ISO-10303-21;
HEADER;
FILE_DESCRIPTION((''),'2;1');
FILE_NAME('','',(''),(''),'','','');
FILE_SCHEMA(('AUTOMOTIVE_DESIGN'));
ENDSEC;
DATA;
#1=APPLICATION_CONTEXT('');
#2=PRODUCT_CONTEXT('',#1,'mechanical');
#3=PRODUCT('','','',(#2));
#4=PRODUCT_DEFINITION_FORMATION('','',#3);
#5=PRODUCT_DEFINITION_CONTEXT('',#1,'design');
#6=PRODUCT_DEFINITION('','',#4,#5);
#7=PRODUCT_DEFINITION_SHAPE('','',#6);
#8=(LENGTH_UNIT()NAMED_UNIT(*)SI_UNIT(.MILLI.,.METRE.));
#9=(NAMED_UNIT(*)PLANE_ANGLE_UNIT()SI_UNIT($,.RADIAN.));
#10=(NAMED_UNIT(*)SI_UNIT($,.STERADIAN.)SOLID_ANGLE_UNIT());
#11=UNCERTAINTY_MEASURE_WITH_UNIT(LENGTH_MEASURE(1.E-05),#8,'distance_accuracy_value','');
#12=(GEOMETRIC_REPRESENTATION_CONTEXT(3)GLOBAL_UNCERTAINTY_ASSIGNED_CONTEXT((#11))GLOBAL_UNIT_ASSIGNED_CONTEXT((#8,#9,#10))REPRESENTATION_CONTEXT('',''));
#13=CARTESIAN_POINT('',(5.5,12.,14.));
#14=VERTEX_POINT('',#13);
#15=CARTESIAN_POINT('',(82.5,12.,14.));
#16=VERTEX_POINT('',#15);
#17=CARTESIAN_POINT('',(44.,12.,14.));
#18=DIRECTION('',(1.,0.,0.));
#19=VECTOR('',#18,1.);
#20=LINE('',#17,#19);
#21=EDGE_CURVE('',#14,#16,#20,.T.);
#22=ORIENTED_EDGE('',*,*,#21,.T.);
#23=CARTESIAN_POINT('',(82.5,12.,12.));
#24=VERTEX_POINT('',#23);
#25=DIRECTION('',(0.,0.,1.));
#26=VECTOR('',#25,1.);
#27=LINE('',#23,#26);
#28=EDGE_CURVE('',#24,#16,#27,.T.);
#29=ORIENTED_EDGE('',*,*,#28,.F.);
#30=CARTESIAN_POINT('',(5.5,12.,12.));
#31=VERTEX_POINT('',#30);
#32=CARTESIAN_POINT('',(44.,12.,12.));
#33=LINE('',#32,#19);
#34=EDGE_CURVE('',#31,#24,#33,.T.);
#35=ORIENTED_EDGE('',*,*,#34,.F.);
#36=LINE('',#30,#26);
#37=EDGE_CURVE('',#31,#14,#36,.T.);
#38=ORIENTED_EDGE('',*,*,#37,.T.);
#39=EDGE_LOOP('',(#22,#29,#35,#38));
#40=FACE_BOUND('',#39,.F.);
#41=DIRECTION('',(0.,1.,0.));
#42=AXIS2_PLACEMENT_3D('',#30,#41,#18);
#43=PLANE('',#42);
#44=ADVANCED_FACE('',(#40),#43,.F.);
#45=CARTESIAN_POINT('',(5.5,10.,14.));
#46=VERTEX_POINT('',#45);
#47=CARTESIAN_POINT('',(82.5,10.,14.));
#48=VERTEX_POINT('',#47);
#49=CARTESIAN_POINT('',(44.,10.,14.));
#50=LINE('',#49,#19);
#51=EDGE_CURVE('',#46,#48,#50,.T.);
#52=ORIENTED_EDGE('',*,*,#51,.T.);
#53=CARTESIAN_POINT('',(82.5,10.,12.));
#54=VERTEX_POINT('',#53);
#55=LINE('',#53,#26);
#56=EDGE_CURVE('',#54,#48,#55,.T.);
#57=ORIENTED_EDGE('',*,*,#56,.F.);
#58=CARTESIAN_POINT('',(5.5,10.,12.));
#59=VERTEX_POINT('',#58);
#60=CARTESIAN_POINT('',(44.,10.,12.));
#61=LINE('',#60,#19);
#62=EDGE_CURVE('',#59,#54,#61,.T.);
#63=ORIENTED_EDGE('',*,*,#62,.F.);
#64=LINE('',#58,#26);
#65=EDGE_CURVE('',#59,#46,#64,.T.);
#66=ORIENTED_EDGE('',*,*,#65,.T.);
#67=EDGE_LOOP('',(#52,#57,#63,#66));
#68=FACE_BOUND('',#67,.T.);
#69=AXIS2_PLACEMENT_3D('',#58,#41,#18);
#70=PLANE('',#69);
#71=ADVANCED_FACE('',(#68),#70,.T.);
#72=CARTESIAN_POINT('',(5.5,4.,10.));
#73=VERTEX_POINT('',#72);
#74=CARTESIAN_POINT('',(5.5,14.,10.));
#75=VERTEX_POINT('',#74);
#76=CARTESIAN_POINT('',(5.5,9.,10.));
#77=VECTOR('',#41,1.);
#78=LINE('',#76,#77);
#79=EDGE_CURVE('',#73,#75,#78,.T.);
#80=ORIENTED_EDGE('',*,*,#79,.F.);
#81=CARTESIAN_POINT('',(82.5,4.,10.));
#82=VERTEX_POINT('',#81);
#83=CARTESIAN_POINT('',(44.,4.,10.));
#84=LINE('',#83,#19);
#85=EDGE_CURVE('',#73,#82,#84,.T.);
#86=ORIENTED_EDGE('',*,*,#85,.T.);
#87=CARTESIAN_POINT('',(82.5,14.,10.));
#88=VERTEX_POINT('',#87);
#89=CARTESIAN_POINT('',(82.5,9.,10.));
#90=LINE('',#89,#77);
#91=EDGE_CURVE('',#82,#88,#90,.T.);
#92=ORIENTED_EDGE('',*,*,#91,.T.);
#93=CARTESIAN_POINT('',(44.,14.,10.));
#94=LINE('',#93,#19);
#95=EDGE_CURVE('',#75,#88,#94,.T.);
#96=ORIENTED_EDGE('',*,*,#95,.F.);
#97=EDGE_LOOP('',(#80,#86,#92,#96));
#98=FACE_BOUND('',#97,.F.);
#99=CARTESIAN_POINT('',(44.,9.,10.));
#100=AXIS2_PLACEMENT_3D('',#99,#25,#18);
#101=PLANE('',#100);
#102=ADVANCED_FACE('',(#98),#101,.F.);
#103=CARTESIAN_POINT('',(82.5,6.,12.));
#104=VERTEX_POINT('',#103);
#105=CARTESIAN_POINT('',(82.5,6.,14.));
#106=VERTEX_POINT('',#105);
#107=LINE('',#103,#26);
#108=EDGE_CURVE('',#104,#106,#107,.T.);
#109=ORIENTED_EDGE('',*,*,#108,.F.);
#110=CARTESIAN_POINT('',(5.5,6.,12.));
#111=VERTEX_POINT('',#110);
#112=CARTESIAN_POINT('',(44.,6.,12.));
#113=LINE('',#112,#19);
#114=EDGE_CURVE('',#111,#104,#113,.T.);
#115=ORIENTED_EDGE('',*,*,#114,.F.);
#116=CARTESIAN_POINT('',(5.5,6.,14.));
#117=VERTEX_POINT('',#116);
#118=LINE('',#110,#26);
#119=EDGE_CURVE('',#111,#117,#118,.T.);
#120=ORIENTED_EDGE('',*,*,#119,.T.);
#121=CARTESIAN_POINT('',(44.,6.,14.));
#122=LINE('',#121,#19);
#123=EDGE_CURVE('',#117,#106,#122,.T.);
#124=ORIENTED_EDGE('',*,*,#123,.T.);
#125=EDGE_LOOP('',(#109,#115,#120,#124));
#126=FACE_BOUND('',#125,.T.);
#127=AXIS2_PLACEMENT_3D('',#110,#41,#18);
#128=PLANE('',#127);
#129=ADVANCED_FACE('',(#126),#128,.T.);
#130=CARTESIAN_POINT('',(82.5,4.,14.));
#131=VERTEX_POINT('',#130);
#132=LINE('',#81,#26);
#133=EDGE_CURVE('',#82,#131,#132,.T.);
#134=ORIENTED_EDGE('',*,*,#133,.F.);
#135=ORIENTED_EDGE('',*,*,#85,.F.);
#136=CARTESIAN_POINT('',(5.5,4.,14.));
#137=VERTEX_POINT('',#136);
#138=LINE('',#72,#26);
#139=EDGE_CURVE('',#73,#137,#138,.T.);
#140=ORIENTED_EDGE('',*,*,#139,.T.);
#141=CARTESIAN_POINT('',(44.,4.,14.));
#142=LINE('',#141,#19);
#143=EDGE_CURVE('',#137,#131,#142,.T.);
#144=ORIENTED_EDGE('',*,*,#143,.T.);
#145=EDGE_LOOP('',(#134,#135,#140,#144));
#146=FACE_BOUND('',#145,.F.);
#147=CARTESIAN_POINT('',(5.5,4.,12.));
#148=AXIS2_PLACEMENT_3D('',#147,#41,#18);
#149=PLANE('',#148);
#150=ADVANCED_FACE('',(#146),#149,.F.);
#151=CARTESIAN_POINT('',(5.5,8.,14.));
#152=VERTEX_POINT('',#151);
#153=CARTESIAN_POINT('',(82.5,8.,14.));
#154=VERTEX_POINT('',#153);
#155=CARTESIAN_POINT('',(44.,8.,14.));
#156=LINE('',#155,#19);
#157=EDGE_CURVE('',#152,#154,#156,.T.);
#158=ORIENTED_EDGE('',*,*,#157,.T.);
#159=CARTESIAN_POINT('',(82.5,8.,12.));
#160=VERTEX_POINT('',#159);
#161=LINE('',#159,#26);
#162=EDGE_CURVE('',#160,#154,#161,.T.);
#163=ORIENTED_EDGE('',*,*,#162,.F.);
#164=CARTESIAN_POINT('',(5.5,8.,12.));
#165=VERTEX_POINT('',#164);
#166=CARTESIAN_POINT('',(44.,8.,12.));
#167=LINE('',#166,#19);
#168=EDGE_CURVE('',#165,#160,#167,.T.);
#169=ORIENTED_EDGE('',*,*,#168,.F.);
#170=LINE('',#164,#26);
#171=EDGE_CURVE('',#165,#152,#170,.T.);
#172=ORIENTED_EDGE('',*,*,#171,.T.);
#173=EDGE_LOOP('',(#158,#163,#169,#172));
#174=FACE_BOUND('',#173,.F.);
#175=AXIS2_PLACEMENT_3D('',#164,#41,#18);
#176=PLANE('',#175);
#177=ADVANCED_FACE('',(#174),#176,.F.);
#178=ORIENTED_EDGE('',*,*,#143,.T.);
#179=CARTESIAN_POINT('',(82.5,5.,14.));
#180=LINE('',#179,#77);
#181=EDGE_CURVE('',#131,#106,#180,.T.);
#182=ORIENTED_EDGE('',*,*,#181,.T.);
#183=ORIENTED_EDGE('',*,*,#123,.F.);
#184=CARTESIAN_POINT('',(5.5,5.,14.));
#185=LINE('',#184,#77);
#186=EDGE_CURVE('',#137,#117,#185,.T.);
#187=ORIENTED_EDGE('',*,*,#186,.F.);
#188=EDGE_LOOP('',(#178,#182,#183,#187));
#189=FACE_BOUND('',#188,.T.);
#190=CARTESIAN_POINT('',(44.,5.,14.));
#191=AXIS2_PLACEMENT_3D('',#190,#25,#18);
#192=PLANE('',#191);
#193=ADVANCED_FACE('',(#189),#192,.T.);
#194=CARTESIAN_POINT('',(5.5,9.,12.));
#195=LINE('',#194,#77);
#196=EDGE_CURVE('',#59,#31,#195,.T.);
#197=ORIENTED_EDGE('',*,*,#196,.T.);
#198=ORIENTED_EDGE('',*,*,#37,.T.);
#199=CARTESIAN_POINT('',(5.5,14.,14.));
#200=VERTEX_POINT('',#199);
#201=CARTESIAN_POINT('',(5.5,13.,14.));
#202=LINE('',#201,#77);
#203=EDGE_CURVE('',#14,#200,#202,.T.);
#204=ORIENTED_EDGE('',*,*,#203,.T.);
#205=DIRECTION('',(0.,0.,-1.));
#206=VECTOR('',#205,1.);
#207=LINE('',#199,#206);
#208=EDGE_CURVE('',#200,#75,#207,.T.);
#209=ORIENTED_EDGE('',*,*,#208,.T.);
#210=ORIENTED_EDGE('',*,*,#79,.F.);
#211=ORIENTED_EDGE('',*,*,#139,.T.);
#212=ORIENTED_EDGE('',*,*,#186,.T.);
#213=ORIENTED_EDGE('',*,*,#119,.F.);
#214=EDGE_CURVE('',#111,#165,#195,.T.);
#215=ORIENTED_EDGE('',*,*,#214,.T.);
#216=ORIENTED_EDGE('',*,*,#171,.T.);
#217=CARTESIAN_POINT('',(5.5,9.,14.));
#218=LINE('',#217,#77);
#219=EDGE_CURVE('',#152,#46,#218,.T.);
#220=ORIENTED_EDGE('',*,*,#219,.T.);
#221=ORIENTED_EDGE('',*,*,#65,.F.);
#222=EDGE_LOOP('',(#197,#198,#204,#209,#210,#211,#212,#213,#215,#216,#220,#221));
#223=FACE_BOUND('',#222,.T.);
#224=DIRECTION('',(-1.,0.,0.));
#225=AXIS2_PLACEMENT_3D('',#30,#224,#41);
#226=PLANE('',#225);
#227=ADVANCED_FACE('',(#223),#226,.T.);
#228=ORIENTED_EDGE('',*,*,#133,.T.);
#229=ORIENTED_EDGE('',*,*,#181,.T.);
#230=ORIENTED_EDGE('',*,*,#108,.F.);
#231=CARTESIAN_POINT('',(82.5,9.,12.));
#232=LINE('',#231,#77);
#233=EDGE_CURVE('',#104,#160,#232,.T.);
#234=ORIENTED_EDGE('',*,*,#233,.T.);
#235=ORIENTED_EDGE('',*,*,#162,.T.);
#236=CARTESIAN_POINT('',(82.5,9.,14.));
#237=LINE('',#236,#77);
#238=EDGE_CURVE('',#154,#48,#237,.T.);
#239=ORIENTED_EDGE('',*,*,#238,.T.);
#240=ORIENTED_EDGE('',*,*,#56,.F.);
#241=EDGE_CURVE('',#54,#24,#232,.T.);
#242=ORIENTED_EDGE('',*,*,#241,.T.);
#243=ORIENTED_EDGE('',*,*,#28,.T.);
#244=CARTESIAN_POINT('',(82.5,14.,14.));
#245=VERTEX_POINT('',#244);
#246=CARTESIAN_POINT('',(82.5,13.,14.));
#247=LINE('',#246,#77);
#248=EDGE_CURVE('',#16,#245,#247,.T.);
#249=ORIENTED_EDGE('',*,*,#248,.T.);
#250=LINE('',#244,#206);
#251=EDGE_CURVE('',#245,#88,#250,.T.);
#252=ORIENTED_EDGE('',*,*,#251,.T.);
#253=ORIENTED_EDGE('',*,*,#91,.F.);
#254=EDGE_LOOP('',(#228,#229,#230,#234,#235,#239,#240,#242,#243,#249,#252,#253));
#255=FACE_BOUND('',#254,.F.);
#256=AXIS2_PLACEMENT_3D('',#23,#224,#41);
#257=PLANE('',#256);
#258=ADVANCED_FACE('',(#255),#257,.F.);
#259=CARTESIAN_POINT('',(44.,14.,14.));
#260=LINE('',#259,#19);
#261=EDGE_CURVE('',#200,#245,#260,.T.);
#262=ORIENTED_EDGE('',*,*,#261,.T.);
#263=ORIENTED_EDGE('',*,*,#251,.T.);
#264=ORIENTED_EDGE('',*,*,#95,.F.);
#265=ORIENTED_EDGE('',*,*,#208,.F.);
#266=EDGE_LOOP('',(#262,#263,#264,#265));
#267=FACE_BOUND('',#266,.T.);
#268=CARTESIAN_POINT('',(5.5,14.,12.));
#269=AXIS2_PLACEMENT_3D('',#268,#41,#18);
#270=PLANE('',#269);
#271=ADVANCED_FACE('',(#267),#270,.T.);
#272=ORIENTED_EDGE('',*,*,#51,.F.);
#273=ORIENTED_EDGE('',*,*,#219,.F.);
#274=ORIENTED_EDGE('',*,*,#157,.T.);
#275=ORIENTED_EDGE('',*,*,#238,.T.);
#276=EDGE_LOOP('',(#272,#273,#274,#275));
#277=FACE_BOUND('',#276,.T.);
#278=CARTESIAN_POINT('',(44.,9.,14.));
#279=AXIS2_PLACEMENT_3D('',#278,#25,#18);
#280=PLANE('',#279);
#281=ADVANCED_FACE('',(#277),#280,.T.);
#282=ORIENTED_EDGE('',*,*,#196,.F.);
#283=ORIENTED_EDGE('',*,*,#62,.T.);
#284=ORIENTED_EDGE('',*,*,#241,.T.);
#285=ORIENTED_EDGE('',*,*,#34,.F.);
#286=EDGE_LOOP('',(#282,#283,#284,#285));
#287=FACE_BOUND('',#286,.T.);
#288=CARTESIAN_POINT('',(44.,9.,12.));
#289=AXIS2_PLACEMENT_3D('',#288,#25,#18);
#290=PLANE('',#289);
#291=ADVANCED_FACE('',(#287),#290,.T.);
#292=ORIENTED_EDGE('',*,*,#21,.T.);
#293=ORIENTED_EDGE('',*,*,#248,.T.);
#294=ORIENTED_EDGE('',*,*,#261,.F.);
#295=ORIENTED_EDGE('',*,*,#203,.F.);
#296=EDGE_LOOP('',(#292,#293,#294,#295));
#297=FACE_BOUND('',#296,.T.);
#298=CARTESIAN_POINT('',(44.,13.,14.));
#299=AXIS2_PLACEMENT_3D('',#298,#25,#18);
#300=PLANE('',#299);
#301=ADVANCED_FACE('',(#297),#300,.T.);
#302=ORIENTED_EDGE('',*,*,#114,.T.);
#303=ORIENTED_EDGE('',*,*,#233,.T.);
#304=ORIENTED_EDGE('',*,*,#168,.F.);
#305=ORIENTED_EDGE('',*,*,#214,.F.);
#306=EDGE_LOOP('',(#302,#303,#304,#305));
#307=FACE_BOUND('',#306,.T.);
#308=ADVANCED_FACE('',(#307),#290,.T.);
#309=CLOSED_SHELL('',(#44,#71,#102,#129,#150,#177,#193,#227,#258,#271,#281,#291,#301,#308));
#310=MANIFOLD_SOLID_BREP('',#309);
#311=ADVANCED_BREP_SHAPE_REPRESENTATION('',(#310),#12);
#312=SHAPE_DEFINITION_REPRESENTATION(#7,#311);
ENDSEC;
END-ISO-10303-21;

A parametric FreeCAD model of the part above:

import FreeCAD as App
import Part
import Sketcher

V = App.Vector
Q = App.Units.Quantity


def add_polygon(sketch, points):
    """Adds a closed chain of lines whose ends are joined by coincident constraints."""
    first, n = sketch.GeometryCount, len(points)
    for a, b in zip(points, points[1:] + points[:1]):
        sketch.addGeometry(Part.LineSegment(App.Vector(*a, 0), App.Vector(*b, 0)), False)
    for i in range(n):
        sketch.addConstraint(Sketcher.Constraint("Coincident", first + i, 2, first + (i + 1) % n, 1))

doc = App.newDocument("Part")
body = doc.addObject("PartDesign::Body", "Body")

# Sketch on XY plane
sketch1 = body.newObject("Sketcher::SketchObject", "Sketch")
sketch1.AttachmentSupport = (doc.getObject("XY_Plane"), [""])
sketch1.MapMode = "FlatFace"
sketch1.AttachmentOffset = App.Placement(V(0, 0, 12), App.Rotation())
add_polygon(sketch1, [(5.5, 106), (5.5, 104), (82.5, 104), (82.5, 106)])  # lines 0-3
sketch1.addConstraint([
    Sketcher.Constraint("Vertical", 0),
    Sketcher.Constraint("Horizontal", 1),
    Sketcher.Constraint("Vertical", 2),
    Sketcher.Constraint("Horizontal", 3),
    Sketcher.Constraint("DistanceX", 1, 1, 1, 2, Q("77 mm")),
    Sketcher.Constraint("DistanceY", 0, 2, 0, 1, Q("2 mm")),
    Sketcher.Constraint("DistanceY", -1, 1, 0, 2, Q("104 mm")),
    Sketcher.Constraint("DistanceX", -1, 1, 0, 2, Q("5.5 mm")),
])
pad1 = body.newObject("PartDesign::Pad", "Pad")
pad1.Profile = sketch1
pad1.Length = 2
body2 = doc.addObject("PartDesign::Body", "Body001")

# Sketch on XY plane
sketch2 = body2.newObject("Sketcher::SketchObject", "Sketch001")
sketch2.AttachmentSupport = (doc.getObject("XY_Plane001"), [""])
sketch2.MapMode = "FlatFace"
sketch2.AttachmentOffset = App.Placement(V(0, 0, 12), App.Rotation())
add_polygon(sketch2, [(5.5, 110), (5.5, 108), (82.5, 108), (82.5, 110)])  # lines 0-3
sketch2.addConstraint([
    Sketcher.Constraint("Vertical", 0),
    Sketcher.Constraint("Horizontal", 1),
    Sketcher.Constraint("Vertical", 2),
    Sketcher.Constraint("Horizontal", 3),
    Sketcher.Constraint("DistanceX", 1, 1, 1, 2, Q("77 mm")),
    Sketcher.Constraint("DistanceY", 0, 2, 0, 1, Q("2 mm")),
    Sketcher.Constraint("DistanceY", -1, 1, 0, 2, Q("108 mm")),
    Sketcher.Constraint("DistanceX", -1, 1, 0, 2, Q("5.5 mm")),
])
pad2 = body2.newObject("PartDesign::Pad", "Pad001")
pad2.Profile = sketch2
pad2.Length = 2
body3 = doc.addObject("PartDesign::Body", "Body002")

# Sketch on XY plane
sketch3 = body3.newObject("Sketcher::SketchObject", "Sketch002")
sketch3.AttachmentSupport = (doc.getObject("XY_Plane002"), [""])
sketch3.MapMode = "FlatFace"
sketch3.AttachmentOffset = App.Placement(V(0, 0, 12), App.Rotation())
add_polygon(sketch3, [(5.5, 114), (5.5, 112), (82.5, 112), (82.5, 114)])  # lines 0-3
sketch3.addConstraint([
    Sketcher.Constraint("Vertical", 0),
    Sketcher.Constraint("Horizontal", 1),
    Sketcher.Constraint("Vertical", 2),
    Sketcher.Constraint("Horizontal", 3),
    Sketcher.Constraint("DistanceX", 1, 1, 1, 2, Q("77 mm")),
    Sketcher.Constraint("DistanceY", 0, 2, 0, 1, Q("2 mm")),
    Sketcher.Constraint("DistanceY", -1, 1, 0, 2, Q("112 mm")),
    Sketcher.Constraint("DistanceX", -1, 1, 0, 2, Q("5.5 mm")),
])
pad3 = body3.newObject("PartDesign::Pad", "Pad002")
pad3.Profile = sketch3
pad3.Length = 2
body4 = doc.addObject("PartDesign::Body", "Body003")

# Sketch on XY plane
sketch4 = body4.newObject("Sketcher::SketchObject", "Sketch003")
sketch4.AttachmentSupport = (doc.getObject("XY_Plane003"), [""])
sketch4.MapMode = "FlatFace"
sketch4.AttachmentOffset = App.Placement(V(0, 0, 10), App.Rotation())
add_polygon(sketch4, [(6, 114), (6, 104), (82, 104), (82, 114)])  # lines 0-3
sketch4.addConstraint([
    Sketcher.Constraint("Vertical", 0),
    Sketcher.Constraint("Horizontal", 1),
    Sketcher.Constraint("Vertical", 2),
    Sketcher.Constraint("Horizontal", 3),
    Sketcher.Constraint("DistanceX", 1, 1, 1, 2, Q("77 mm")),
    Sketcher.Constraint("DistanceY", 0, 2, 0, 1, Q("10 mm")),
    Sketcher.Constraint("DistanceY", -1, 1, 0, 2, Q("104 mm")),
    Sketcher.Constraint("DistanceX", -1, 1, 0, 2, Q("5.5 mm")),
])
pad4 = body4.newObject("PartDesign::Pad", "Pad003")
pad4.Profile = sketch4
pad4.Length = 2
doc.recompute()

boolean = body4.newObject("PartDesign::Boolean", "Boolean")
boolean.Type = "Fuse"
boolean.addObjects([body])
doc.recompute()

boolean2 = body4.newObject("PartDesign::Boolean", "Boolean001")
boolean2.Type = "Fuse"
boolean2.addObjects([body2])
doc.recompute()

boolean3 = body4.newObject("PartDesign::Boolean", "Boolean002")
boolean3.Type = "Fuse"
boolean3.addObjects([body3])
body5 = doc.addObject("PartDesign::Body", "Body004")
doc.recompute()

body4.Placement = App.Placement(V(0, -100, 0), App.Rotation(V(0, 0, 1), 0))
boolean4 = body5.newObject("PartDesign::Boolean", "Boolean003")
boolean4.Type = "Fuse"
boolean4.addObjects([body4])

doc.recompute()
